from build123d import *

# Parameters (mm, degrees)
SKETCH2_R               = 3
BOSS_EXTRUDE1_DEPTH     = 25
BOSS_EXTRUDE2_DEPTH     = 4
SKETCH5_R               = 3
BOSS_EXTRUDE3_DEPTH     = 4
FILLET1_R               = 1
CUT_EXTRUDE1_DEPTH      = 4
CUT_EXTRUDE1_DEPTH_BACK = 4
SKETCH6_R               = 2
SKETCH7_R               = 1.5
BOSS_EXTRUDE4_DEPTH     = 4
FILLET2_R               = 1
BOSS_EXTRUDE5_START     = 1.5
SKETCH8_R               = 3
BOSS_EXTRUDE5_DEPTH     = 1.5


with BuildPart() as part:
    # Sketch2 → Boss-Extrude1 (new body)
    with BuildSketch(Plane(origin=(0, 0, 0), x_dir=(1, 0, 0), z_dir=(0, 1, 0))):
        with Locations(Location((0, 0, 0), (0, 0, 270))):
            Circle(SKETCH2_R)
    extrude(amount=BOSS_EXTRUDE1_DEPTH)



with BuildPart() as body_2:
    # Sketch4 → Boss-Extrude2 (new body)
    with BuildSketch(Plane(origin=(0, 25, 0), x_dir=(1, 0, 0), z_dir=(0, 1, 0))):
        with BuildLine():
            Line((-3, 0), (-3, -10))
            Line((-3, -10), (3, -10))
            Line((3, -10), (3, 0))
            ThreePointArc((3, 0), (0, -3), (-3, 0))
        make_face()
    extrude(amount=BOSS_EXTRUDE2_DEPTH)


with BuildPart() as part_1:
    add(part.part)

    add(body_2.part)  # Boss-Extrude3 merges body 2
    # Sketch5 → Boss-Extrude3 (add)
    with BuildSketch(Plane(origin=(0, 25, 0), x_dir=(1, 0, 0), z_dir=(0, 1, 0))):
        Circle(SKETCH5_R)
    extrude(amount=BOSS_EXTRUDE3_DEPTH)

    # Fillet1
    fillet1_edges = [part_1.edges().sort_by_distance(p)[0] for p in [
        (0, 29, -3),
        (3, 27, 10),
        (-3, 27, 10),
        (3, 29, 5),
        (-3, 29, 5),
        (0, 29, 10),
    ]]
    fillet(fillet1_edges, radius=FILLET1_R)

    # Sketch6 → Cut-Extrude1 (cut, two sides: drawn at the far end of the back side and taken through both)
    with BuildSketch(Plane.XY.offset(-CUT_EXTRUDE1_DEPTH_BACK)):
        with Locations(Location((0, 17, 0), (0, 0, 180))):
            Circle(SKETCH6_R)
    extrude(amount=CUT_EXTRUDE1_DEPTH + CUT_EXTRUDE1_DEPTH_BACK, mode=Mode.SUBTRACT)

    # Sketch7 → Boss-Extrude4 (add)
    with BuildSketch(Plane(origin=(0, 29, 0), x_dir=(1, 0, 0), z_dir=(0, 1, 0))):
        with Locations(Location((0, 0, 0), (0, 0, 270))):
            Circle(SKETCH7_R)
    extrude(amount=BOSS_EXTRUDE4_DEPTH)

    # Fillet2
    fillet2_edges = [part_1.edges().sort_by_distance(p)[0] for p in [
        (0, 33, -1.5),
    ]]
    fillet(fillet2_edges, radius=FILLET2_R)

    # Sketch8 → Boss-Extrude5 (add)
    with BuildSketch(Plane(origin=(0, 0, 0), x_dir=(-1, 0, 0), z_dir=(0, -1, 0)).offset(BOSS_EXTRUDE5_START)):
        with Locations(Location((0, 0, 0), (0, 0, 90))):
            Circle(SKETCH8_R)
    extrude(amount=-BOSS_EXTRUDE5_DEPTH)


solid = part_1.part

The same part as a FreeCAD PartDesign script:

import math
import FreeCAD as App
import Part
import Sketcher

V = App.Vector
Q = App.Units.Quantity


def edges_at(feature, points):
    """Names of the edges that pass closest to the given points."""
    edges = feature.Shape.Edges
    near = lambda p: min(range(len(edges)), key=lambda i: edges[i].distToShape(Part.Vertex(*p))[0])
    return sorted({f"Edge{near(p) + 1}" for p in points})

doc = App.newDocument("Part")
body = doc.addObject("PartDesign::Body", "Body")

sketch1 = doc.addObject("Sketcher::SketchObject", "Sketch")
body.addObject(sketch1)
sketch1.AttachmentSupport = (doc.XZ_Plane, [""])
sketch1.MapMode = "FlatFace"
sketch1.addGeometry(Part.Circle(V(0, 0, 0), V(0, 0, 1), 3), False)
sketch1.addConstraint([
    Sketcher.Constraint("Coincident", 0, 3, -1, 1),
    Sketcher.Constraint("Diameter", 0, Q("6 mm")),
])
pad1 = doc.addObject("PartDesign::Pad", "Pad")
body.addObject(pad1)
pad1.Profile = sketch1
pad1.Length = 25
pad1.Reversed = True
body2 = doc.addObject("PartDesign::Body", "Body001")

sketch2 = doc.addObject("Sketcher::SketchObject", "Sketch001")
body2.addObject(sketch2)
sketch2.AttachmentSupport = (doc.getObject("XZ_Plane001"), [""])
sketch2.MapMode = "FlatFace"
sketch2.AttachmentOffset = App.Placement(V(0, 0, -25), App.Rotation())
sketch2.addGeometry([
    Part.LineSegment(V(-3, 0, 0), V(-3, 10, 0)),
    Part.LineSegment(V(-3, 10, 0), V(3, 10, 0)),
    Part.LineSegment(V(3, 10, 0), V(3, 0, 0)),
    Part.ArcOfCircle(Part.Circle(V(0, 0, 0), V(0, 0, 1), 3), math.radians(0), math.radians(180)),
], False)
sketch2.addConstraint([
    Sketcher.Constraint("Coincident", 0, 2, 1, 1),
    Sketcher.Constraint("Coincident", 1, 2, 2, 1),
    Sketcher.Constraint("Tangent", 2, 2, 3, 1),
    Sketcher.Constraint("Tangent", 3, 2, 0, 1),
    Sketcher.Constraint("Vertical", 0),
    Sketcher.Constraint("Horizontal", 1),
    Sketcher.Constraint("Vertical", 2),
    Sketcher.Constraint("Coincident", 3, 3, -1, 1),
    Sketcher.Constraint("Radius", 3, Q("3 mm")),
    Sketcher.Constraint("DistanceY", 0, 1, 0, 2, Q("10 mm")),
])
pad2 = doc.addObject("PartDesign::Pad", "Pad001")
body2.addObject(pad2)
pad2.Profile = sketch2
pad2.Length = 4
pad2.Reversed = True
body.AllowCompound = True
doc.recompute()

boolean = doc.addObject("PartDesign::Boolean", "Boolean")
body.addObject(boolean)
boolean.Type = "Fuse"
boolean.addObjects([body2])

sketch3 = doc.addObject("Sketcher::SketchObject", "Sketch002")
body.addObject(sketch3)
sketch3.AttachmentSupport = (doc.XZ_Plane, [""])
sketch3.MapMode = "FlatFace"
sketch3.AttachmentOffset = App.Placement(V(0, 0, -25), App.Rotation())
sketch3.addGeometry(Part.Circle(V(0, 0, 0), V(0, 0, 1), 3), False)
sketch3.addConstraint([
    Sketcher.Constraint("Coincident", 0, 3, -1, 1),
    Sketcher.Constraint("Diameter", 0, Q("6 mm")),
])
pad3 = doc.addObject("PartDesign::Pad", "Pad002")
body.addObject(pad3)
pad3.Profile = sketch3
pad3.Length = 4
pad3.Reversed = True
doc.recompute()

fillet = doc.addObject("PartDesign::Fillet", "Fillet")
body.addObject(fillet)
fillet.Base = (pad3, edges_at(pad3, [
    (0, 29, -3),
    (3, 27, 10),
    (-3, 27, 10),
    (3, 29, 5),
    (-3, 29, 5),
    (0, 29, 10),
]))
fillet.Radius = 1

sketch4 = doc.addObject("Sketcher::SketchObject", "Sketch003")
body.addObject(sketch4)
sketch4.AttachmentSupport = (doc.XY_Plane, [""])
sketch4.MapMode = "FlatFace"
sketch4.addGeometry(Part.Circle(V(0, 17, 0), V(0, 0, 1), 2), False)
sketch4.addConstraint([
    Sketcher.Constraint("PointOnObject", 0, 3, -2),
    Sketcher.Constraint("Diameter", 0, Q("4 mm")),
    Sketcher.Constraint("DistanceY", -1, 1, 0, 3, Q("17 mm")),
])
pocket1 = doc.addObject("PartDesign::Pocket", "Pocket")
body.addObject(pocket1)
pocket1.Profile = sketch4
pocket1.Type = "ThroughAll"
pocket1.Midplane = True

sketch5 = doc.addObject("Sketcher::SketchObject", "Sketch004")
body.addObject(sketch5)
sketch5.AttachmentSupport = (doc.XZ_Plane, [""])
sketch5.MapMode = "FlatFace"
sketch5.AttachmentOffset = App.Placement(V(0, 0, -29), App.Rotation())
sketch5.addGeometry(Part.Circle(V(0, 0, 0), V(0, 0, 1), 1.5), False)
sketch5.addConstraint([
    Sketcher.Constraint("Coincident", 0, 3, -1, 1),
    Sketcher.Constraint("Diameter", 0, Q("3 mm")),
])
pad4 = doc.addObject("PartDesign::Pad", "Pad003")
body.addObject(pad4)
pad4.Profile = sketch5
pad4.Length = 4
pad4.Reversed = True
doc.recompute()

fillet2 = doc.addObject("PartDesign::Fillet", "Fillet001")
body.addObject(fillet2)
fillet2.Base = (pad4, edges_at(pad4, [(0, 33, -1.5)]))
fillet2.Radius = 1

sketch6 = doc.addObject("Sketcher::SketchObject", "Sketch005")
body.addObject(sketch6)
sketch6.AttachmentSupport = (doc.XZ_Plane, [""])
sketch6.MapMode = "FlatFace"
sketch6.AttachmentOffset = App.Placement(V(0, 0, 1.5), App.Rotation())
sketch6.addGeometry(Part.Circle(V(0, 0, 0), V(0, 0, 1), 3), False)
sketch6.addConstraint([
    Sketcher.Constraint("Coincident", 0, 3, -1, 1),
    Sketcher.Constraint("Diameter", 0, Q("6 mm")),
])
pad5 = doc.addObject("PartDesign::Pad", "Pad004")
body.addObject(pad5)
pad5.Profile = sketch6
pad5.Length = 1.5
pad5.Reversed = True

doc.recompute()
